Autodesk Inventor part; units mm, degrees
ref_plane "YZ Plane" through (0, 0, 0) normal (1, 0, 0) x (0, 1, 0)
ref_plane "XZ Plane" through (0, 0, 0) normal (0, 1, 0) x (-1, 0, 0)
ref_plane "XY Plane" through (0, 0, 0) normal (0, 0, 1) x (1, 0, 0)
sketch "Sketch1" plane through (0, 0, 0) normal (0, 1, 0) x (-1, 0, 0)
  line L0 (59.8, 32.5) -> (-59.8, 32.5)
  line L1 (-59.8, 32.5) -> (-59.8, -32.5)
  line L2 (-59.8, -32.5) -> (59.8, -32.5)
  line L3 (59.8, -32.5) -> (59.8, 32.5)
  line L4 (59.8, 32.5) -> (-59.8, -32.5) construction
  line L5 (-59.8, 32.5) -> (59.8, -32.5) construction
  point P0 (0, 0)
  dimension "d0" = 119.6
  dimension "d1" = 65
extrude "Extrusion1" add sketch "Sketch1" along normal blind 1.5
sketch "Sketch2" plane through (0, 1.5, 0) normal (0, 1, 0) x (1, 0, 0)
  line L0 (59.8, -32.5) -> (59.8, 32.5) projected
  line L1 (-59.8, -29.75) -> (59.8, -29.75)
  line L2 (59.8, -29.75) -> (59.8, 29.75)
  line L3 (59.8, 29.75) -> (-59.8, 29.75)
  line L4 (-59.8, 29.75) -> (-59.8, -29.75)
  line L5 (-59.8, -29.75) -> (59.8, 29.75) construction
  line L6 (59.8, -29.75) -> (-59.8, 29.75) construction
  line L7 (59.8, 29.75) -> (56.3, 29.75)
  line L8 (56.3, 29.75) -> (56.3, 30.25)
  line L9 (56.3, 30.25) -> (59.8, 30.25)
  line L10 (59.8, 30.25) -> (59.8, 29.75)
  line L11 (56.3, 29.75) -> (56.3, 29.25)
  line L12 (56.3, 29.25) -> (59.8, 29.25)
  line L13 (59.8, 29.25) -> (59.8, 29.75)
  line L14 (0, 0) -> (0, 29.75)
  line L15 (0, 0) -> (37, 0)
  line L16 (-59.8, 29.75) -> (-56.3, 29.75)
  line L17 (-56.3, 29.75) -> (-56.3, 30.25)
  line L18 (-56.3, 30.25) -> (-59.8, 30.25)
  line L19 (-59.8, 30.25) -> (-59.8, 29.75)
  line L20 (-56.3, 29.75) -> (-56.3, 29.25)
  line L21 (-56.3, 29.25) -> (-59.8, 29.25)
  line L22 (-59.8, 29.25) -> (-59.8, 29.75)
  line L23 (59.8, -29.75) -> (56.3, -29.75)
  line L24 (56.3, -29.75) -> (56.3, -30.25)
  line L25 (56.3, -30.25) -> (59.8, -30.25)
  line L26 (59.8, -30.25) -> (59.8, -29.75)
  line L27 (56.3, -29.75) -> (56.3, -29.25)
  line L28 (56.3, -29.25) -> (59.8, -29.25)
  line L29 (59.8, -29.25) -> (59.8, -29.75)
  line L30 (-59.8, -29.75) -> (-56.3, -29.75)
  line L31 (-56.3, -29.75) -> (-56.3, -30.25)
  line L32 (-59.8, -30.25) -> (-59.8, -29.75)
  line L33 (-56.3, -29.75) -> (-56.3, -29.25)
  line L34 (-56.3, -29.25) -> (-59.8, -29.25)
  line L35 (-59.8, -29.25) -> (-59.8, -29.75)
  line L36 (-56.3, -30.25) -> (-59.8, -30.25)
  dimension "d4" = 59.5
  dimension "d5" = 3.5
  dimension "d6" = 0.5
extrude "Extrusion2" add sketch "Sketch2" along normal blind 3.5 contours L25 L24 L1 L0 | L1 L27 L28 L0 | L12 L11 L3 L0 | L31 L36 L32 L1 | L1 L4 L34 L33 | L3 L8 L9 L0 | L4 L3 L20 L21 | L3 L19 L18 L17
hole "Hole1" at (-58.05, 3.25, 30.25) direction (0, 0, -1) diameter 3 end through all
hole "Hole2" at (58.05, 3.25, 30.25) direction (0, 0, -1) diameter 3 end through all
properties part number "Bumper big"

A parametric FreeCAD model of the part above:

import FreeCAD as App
import Part
import Sketcher

doc = App.newDocument("Part")
body = doc.addObject("PartDesign::Body", "Body")

# Sketch on XZ plane
sketch1 = body.newObject("Sketcher::SketchObject", "Sketch")
sketch1.AttachmentSupport = (doc.getObject("XZ_Plane"), [""])
sketch1.MapMode = "FlatFace"
sketch1.addGeometry([
    Part.LineSegment(App.Vector(-60, -32, 0), App.Vector(-60, 32, 0)),
    Part.LineSegment(App.Vector(-60, 32, 0), App.Vector(60, 32, 0)),
    Part.LineSegment(App.Vector(60, 32, 0), App.Vector(60, -32, 0)),
    Part.LineSegment(App.Vector(60, -32, 0), App.Vector(-60, -32, 0)),
], False)
sketch1.addConstraint([
    Sketcher.Constraint("Coincident", 0, 2, 1, 1),
    Sketcher.Constraint("Coincident", 1, 2, 2, 1),
    Sketcher.Constraint("Coincident", 2, 2, 3, 1),
    Sketcher.Constraint("Coincident", 3, 2, 0, 1),
    Sketcher.Constraint("Vertical", 0),
    Sketcher.Constraint("Horizontal", 1),
    Sketcher.Constraint("Vertical", 2),
    Sketcher.Constraint("Horizontal", 3),
    Sketcher.Constraint("Symmetric", 0, 2, 2, 2, -1, 1),
    Sketcher.Constraint("DistanceY", 0, 1, 0, 2, 65.0),
    Sketcher.Constraint("DistanceX", 1, 1, 1, 2, 119.6),
])
pad1 = body.newObject("PartDesign::Pad", "Pad")
pad1.Profile = sketch1
pad1.Length = 1.5
pad1.Reversed = True

# Sketch on XZ plane
sketch2 = body.newObject("Sketcher::SketchObject", "Sketch001")
sketch2.AttachmentSupport = (doc.getObject("XZ_Plane"), [""])
sketch2.MapMode = "FlatFace"
sketch2.AttachmentOffset = App.Placement(App.Vector(0, 0, -1.5), App.Rotation())
sketch2.addGeometry([
    Part.LineSegment(App.Vector(56.3, 30.2, 0), App.Vector(59.8, 30.2, 0)),  # 0
    Part.LineSegment(App.Vector(59.8, 30.2, 0), App.Vector(59.8, 29.2, 0)),  # 1
    Part.LineSegment(App.Vector(59.8, 29.2, 0), App.Vector(56.3, 29.2, 0)),  # 2
    Part.LineSegment(App.Vector(56.3, 29.2, 0), App.Vector(56.3, 30.2, 0)),  # 3
    Part.LineSegment(App.Vector(56.3, -29.2, 0), App.Vector(59.8, -29.2, 0)),  # 4
    Part.LineSegment(App.Vector(59.8, -29.2, 0), App.Vector(59.8, -30.2, 0)),  # 5
    Part.LineSegment(App.Vector(59.8, -30.2, 0), App.Vector(56.3, -30.2, 0)),  # 6
    Part.LineSegment(App.Vector(56.3, -30.2, 0), App.Vector(56.3, -29.2, 0)),  # 7
    Part.LineSegment(App.Vector(-56.3, 30.2, 0), App.Vector(-56.3, 29.2, 0)),  # 8
    Part.LineSegment(App.Vector(-56.3, 29.2, 0), App.Vector(-59.8, 29.2, 0)),  # 9
    Part.LineSegment(App.Vector(-59.8, 29.2, 0), App.Vector(-59.8, 30.2, 0)),  # 10
    Part.LineSegment(App.Vector(-59.8, 30.2, 0), App.Vector(-56.3, 30.2, 0)),  # 11
    Part.LineSegment(App.Vector(-59.8, -29.2, 0), App.Vector(-56.3, -29.2, 0)),  # 12
    Part.LineSegment(App.Vector(-56.3, -29.2, 0), App.Vector(-56.3, -30.2, 0)),  # 13
    Part.LineSegment(App.Vector(-56.3, -30.2, 0), App.Vector(-59.8, -30.2, 0)),  # 14
    Part.LineSegment(App.Vector(-59.8, -30.2, 0), App.Vector(-59.8, -29.2, 0)),  # 15
], False)
sketch2.addConstraint([
    Sketcher.Constraint("Coincident", 0, 2, 1, 1),
    Sketcher.Constraint("Coincident", 1, 2, 2, 1),
    Sketcher.Constraint("Coincident", 2, 2, 3, 1),
    Sketcher.Constraint("Coincident", 3, 2, 0, 1),
    Sketcher.Constraint("Coincident", 4, 2, 5, 1),
    Sketcher.Constraint("Coincident", 5, 2, 6, 1),
    Sketcher.Constraint("Coincident", 6, 2, 7, 1),
    Sketcher.Constraint("Coincident", 7, 2, 4, 1),
    Sketcher.Constraint("Coincident", 8, 2, 9, 1),
    Sketcher.Constraint("Coincident", 9, 2, 10, 1),
    Sketcher.Constraint("Coincident", 10, 2, 11, 1),
    Sketcher.Constraint("Coincident", 11, 2, 8, 1),
    Sketcher.Constraint("Coincident", 12, 2, 13, 1),
    Sketcher.Constraint("Coincident", 13, 2, 14, 1),
    Sketcher.Constraint("Coincident", 14, 2, 15, 1),
    Sketcher.Constraint("Coincident", 15, 2, 12, 1),
    Sketcher.Constraint("Horizontal", 0),
    Sketcher.Constraint("Vertical", 1),
    Sketcher.Constraint("Horizontal", 2),
    Sketcher.Constraint("Vertical", 3),
    Sketcher.Constraint("Horizontal", 4),
    Sketcher.Constraint("Vertical", 5),
    Sketcher.Constraint("Horizontal", 6),
    Sketcher.Constraint("Vertical", 7),
    Sketcher.Constraint("Vertical", 8),
    Sketcher.Constraint("Horizontal", 9),
    Sketcher.Constraint("Vertical", 10),
    Sketcher.Constraint("Horizontal", 11),
    Sketcher.Constraint("Horizontal", 12),
    Sketcher.Constraint("Vertical", 13),
    Sketcher.Constraint("Horizontal", 14),
    Sketcher.Constraint("Vertical", 15),
    Sketcher.Constraint("Symmetric", 7, 2, 8, 2, -1, 1),
    Sketcher.Constraint("Symmetric", 5, 2, 10, 2, -1, 1),
    Sketcher.Constraint("Symmetric", 2, 2, 12, 2, -1, 1),
    Sketcher.Constraint("Symmetric", 0, 2, 14, 2, -1, 1),
    Sketcher.Constraint("Symmetric", 2, 2, 8, 2, -2),
    Sketcher.Constraint("Symmetric", 0, 2, 10, 2, -2),
    Sketcher.Constraint("DistanceX", 0, 1, 0, 2, 3.5),
    Sketcher.Constraint("DistanceY", 4, 2, 0, 2, 59.5),
    Sketcher.Constraint("DistanceY", 1, 2, 1, 1, 1.0),
    Sketcher.Constraint("DistanceX", -1, 1, 0, 2, 59.8),
])
pad2 = body.newObject("PartDesign::Pad", "Pad001")
pad2.Profile = sketch2
pad2.Length = 3.5
pad2.Reversed = True

# Sketch on XY plane
sketch3 = body.newObject("Sketcher::SketchObject", "Sketch002")
sketch3.AttachmentSupport = (doc.getObject("XY_Plane"), [""])
sketch3.MapMode = "FlatFace"
sketch3.AttachmentOffset = App.Placement(App.Vector(0, 0, 30.25), App.Rotation())
sketch3.addGeometry(Part.Circle(App.Vector(-58, 3.2, 0), App.Vector(0, 0, 1), 1.5), False)
sketch3.addConstraint([
    Sketcher.Constraint("Diameter", 0, 3.0),
    Sketcher.Constraint("DistanceX", 0, 3, -1, 1, 58.05),
    Sketcher.Constraint("DistanceY", -1, 1, 0, 3, 3.25),
])
doc.recompute()
hole = body.newObject("PartDesign::Hole", "Hole")
hole.Profile = sketch3
hole.ThreadType = "None"
hole.Diameter = 3
hole.DepthType = "ThroughAll"

# Sketch on XY plane
sketch4 = body.newObject("Sketcher::SketchObject", "Sketch003")
sketch4.AttachmentSupport = (doc.getObject("XY_Plane"), [""])
sketch4.MapMode = "FlatFace"
sketch4.AttachmentOffset = App.Placement(App.Vector(0, 0, 30.25), App.Rotation())
sketch4.addGeometry(Part.Circle(App.Vector(58, 3.2, 0), App.Vector(0, 0, 1), 1.5), False)
sketch4.addConstraint([
    Sketcher.Constraint("Diameter", 0, 3.0),
    Sketcher.Constraint("DistanceX", -1, 1, 0, 3, 58.05),
    Sketcher.Constraint("DistanceY", -1, 1, 0, 3, 3.25),
])
doc.recompute()
hole2 = body.newObject("PartDesign::Hole", "Hole001")
hole2.Profile = sketch4
hole2.ThreadType = "None"
hole2.Diameter = 3
hole2.DepthType = "ThroughAll"

doc.recompute()
